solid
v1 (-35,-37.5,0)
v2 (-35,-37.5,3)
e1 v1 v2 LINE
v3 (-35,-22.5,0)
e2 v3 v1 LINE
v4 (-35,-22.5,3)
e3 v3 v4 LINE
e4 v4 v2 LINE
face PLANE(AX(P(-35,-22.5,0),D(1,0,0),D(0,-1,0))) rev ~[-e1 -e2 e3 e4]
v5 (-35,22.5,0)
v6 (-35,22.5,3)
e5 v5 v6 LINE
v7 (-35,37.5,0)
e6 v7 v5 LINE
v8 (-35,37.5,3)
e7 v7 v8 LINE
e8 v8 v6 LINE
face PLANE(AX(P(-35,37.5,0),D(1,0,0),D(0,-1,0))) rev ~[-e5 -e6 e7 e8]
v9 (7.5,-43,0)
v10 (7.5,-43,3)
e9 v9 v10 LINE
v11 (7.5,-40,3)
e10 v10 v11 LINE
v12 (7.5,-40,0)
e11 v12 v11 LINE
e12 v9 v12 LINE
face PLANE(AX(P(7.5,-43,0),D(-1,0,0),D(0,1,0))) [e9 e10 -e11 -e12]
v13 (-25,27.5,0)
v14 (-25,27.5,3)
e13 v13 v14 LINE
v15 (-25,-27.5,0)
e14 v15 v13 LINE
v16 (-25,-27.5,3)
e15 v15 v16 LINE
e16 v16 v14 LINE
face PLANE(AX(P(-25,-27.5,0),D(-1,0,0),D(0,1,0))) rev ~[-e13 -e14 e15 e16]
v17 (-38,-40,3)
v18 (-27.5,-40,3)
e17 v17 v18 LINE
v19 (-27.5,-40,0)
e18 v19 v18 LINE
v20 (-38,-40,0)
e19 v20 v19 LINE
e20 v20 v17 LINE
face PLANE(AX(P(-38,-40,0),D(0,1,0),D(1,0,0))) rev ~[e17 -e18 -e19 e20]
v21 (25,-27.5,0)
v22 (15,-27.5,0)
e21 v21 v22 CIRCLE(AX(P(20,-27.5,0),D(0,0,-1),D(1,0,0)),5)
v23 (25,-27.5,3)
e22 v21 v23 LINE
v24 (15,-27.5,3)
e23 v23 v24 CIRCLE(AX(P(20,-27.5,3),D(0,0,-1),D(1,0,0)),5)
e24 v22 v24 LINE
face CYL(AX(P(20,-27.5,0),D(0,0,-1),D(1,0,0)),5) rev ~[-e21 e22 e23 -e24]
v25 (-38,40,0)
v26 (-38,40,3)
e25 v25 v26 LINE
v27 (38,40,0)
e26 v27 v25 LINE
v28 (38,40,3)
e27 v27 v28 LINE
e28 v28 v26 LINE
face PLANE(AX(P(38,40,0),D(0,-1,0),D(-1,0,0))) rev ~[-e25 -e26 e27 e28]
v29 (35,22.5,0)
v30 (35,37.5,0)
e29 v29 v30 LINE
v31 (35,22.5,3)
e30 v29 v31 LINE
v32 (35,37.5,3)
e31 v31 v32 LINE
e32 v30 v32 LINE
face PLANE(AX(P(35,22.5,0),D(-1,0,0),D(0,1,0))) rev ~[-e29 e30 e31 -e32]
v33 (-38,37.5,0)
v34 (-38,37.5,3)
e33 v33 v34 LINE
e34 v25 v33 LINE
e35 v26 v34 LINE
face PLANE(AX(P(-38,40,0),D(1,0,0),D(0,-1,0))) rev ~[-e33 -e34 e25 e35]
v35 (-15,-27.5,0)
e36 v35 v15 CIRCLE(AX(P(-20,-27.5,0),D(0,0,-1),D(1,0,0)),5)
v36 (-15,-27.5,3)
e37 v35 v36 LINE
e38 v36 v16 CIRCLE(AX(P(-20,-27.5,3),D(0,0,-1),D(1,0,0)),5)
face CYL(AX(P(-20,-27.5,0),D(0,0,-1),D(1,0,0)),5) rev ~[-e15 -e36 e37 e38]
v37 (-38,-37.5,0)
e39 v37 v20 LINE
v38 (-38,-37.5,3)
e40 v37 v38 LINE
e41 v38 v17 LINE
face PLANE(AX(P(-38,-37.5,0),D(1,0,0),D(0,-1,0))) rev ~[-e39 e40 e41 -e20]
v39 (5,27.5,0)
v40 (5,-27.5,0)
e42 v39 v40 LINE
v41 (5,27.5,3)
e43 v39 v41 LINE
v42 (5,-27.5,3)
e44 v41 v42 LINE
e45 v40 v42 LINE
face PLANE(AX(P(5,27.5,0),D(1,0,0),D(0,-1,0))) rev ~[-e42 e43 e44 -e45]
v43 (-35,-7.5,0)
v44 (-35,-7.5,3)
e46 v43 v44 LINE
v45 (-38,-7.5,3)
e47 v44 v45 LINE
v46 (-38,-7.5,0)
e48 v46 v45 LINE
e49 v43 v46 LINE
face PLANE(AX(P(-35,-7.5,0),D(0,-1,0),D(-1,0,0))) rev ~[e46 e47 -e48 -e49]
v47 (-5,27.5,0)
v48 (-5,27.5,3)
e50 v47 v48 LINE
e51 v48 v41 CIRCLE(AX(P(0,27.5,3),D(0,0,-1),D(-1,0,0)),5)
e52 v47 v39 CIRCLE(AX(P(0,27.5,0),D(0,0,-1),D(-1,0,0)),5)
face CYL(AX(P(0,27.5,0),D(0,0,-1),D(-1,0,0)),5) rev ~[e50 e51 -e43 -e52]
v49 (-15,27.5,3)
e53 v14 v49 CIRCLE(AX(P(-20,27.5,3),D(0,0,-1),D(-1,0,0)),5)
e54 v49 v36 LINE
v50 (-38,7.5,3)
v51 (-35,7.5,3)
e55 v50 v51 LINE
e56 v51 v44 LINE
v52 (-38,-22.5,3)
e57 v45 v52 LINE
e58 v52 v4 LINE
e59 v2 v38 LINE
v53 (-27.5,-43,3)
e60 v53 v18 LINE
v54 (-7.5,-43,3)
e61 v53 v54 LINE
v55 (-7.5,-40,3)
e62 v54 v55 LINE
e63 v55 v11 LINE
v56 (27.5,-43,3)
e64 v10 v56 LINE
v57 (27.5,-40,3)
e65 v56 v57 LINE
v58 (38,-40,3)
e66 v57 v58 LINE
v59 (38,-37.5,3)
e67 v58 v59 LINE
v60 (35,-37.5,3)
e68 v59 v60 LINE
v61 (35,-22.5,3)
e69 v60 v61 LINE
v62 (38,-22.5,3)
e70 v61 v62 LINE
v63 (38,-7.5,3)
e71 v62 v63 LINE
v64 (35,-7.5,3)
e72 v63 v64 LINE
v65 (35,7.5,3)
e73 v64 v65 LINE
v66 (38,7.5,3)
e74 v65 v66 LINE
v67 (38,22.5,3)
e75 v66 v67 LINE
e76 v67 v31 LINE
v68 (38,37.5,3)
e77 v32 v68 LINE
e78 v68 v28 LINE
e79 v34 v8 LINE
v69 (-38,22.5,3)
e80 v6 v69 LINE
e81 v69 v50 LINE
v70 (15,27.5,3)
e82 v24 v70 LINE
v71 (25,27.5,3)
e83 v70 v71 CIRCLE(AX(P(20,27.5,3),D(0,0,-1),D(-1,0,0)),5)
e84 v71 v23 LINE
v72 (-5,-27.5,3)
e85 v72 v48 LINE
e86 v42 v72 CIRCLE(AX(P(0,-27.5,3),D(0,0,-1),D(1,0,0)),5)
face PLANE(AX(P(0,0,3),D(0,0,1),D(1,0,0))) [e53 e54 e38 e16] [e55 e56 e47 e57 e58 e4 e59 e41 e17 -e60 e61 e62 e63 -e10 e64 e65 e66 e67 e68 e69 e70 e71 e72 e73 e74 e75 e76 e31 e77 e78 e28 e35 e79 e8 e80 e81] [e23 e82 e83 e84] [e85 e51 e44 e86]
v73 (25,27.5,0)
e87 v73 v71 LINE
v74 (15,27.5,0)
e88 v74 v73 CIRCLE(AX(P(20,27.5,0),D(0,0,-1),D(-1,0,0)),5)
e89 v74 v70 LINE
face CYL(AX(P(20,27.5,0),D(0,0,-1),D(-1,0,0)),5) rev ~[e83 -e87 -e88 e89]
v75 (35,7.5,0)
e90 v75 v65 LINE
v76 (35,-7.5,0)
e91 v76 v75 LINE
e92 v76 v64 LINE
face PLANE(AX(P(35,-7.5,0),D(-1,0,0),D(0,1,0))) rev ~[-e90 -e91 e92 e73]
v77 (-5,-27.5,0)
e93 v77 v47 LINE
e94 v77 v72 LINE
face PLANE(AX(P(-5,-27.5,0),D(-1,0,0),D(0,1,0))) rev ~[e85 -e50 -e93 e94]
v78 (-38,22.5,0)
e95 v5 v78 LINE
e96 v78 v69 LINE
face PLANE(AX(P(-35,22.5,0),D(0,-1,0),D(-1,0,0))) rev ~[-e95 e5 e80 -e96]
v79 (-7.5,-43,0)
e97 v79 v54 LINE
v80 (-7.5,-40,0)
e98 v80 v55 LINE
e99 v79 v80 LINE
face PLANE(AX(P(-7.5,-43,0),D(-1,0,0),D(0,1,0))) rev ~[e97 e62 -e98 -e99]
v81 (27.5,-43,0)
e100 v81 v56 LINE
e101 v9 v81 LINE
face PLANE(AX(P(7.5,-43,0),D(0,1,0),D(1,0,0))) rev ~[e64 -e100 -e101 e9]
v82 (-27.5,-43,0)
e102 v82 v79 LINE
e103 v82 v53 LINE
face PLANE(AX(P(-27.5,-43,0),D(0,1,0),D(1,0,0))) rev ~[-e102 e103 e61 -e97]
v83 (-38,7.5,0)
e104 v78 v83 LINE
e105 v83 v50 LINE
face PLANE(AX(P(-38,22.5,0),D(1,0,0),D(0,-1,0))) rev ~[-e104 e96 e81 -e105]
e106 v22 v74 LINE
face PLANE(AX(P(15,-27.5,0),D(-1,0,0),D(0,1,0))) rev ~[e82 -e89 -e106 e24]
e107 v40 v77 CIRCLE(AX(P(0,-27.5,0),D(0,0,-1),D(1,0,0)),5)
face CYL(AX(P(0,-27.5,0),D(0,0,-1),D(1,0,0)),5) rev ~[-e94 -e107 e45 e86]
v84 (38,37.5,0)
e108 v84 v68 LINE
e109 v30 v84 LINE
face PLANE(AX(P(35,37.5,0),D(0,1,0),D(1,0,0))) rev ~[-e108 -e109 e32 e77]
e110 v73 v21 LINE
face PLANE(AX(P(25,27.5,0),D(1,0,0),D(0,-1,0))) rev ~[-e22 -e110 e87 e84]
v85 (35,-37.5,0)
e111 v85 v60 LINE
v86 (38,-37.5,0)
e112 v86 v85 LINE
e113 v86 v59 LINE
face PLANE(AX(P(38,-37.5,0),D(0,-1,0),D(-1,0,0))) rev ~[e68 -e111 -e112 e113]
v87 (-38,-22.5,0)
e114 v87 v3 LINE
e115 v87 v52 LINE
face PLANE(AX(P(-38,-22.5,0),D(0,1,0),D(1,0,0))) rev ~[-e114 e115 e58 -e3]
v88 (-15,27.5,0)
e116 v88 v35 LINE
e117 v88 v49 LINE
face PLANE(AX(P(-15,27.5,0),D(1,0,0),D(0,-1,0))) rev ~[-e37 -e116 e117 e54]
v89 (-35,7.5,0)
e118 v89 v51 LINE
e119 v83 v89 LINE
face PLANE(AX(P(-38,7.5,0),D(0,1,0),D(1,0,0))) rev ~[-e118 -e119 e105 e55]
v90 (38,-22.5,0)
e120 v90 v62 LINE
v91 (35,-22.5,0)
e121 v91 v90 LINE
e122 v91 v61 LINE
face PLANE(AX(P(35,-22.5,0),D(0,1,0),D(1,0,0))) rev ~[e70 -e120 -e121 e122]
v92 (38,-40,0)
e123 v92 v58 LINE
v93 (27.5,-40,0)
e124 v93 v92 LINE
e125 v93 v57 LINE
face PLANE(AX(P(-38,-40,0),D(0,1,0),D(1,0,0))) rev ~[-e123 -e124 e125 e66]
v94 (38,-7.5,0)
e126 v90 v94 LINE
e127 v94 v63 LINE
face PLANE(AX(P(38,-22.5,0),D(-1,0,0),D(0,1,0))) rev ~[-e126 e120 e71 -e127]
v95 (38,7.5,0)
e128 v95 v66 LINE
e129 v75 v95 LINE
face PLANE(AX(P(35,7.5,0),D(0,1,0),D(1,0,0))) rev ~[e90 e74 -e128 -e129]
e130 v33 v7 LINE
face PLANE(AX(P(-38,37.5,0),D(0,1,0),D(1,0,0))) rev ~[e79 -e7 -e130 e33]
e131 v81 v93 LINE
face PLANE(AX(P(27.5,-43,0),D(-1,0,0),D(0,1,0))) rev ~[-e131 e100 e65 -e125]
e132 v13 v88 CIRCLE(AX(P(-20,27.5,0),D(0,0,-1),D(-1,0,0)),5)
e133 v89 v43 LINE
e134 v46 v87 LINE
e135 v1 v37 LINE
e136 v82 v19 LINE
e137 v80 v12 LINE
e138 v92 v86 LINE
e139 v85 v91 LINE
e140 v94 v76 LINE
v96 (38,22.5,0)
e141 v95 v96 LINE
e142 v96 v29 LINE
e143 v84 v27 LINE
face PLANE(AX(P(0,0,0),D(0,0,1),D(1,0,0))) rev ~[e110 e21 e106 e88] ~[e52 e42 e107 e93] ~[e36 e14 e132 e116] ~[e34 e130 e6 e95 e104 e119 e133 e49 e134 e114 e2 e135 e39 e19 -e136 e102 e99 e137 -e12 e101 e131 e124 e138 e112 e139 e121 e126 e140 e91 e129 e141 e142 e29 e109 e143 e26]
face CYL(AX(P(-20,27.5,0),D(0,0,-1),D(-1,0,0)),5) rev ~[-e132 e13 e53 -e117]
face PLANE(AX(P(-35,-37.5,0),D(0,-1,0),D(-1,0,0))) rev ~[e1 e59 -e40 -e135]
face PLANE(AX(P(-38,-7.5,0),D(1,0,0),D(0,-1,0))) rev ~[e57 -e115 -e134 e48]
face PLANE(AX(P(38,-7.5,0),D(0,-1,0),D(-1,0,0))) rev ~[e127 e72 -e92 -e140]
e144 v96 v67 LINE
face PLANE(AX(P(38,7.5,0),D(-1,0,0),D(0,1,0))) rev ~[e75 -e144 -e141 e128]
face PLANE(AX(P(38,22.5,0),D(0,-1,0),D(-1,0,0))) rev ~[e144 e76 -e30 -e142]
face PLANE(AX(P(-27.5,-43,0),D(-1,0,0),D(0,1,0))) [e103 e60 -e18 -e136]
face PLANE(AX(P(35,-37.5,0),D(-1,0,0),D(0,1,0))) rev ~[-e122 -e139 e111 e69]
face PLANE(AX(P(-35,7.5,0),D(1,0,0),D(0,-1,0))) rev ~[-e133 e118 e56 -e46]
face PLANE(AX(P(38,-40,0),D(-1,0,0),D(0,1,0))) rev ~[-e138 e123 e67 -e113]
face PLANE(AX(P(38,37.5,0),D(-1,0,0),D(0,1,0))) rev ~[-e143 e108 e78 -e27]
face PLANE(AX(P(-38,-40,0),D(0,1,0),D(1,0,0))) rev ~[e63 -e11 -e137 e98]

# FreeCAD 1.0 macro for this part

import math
import FreeCAD as App
import Part
import Sketcher
from FreeCAD import Vector
Q = App.Units.Quantity


def add_polygon(sketch, points):
    """Adds a closed chain of lines whose ends are joined by coincident constraints."""
    first, n = sketch.GeometryCount, len(points)
    for a, b in zip(points, points[1:] + points[:1]):
        sketch.addGeometry(Part.LineSegment(App.Vector(*a, 0), App.Vector(*b, 0)), False)
    for i in range(n):
        sketch.addConstraint(Sketcher.Constraint("Coincident", first + i, 2, first + (i + 1) % n, 1))

doc = App.newDocument("Part")
params = doc.addObject("Spreadsheet::Sheet", "Params")
for row, (alias, value) in enumerate([
    ("sketch1_radius", "5 mm"),
    ("sketch1_width", "3 mm"),
    ("sketch1_width2", "20 mm"),
    ("sketch1_width3", "15 mm"),
    ("sketch1_width4", "76 mm"),
    ("pad1_length", "3 mm"),
], start=1):
    params.set(f"A{row}", alias)
    params.set(f"B{row}", "=" + value)
    params.setAlias(f"B{row}", alias)

body = doc.addObject("PartDesign::Body", "Body")

# Sketch on XY plane
sketch1 = doc.addObject("Sketcher::SketchObject", "Sketch")
body.addObject(sketch1)
sketch1.AttachmentSupport = (doc.XY_Plane, [""])
sketch1.MapMode = "FlatFace"
add_polygon(sketch1, [(-38, 40), (-38, 37.5), (-35, 37.5), (-35, 22.5), (-38, 22.5), (-38, 7.5), (-35, 7.5), (-35, -7.5), (-38, -7.5), (-38, -22.5), (-35, -22.5), (-35, -37.5), (-38, -37.5), (-38, -40), (-27.5, -40), (-27.5, -43), (-7.5, -43), (-7.5, -40), (7.5, -40), (7.5, -43), (27.5, -43), (27.5, -40), (38, -40), (38, -37.5), (35, -37.5), (35, -22.5), (38, -22.5), (38, -7.5), (35, -7.5), (35, 7.5), (38, 7.5), (38, 22.5), (35, 22.5), (35, 37.5), (38, 37.5), (38, 40)])  # lines 0-35
sketch1.addGeometry(Part.ArcOfCircle(Part.Circle(Vector(-20, 27.5, 0), Vector(0, 0, 1), 5), math.radians(0), math.radians(180)), False)  # 36
sketch1.addGeometry(Part.LineSegment(Vector(-15, 27.5, 0), Vector(-15, -27.5, 0)), False)  # 37
sketch1.addGeometry(Part.ArcOfCircle(Part.Circle(Vector(-20, -27.5, 0), Vector(0, 0, 1), 5), math.radians(180), math.radians(360)), False)  # 38
sketch1.addGeometry(Part.LineSegment(Vector(-25, -27.5, 0), Vector(-25, 27.5, 0)), False)  # 39
sketch1.addGeometry(Part.LineSegment(Vector(5, 27.5, 0), Vector(5, -27.5, 0)), False)  # 40
sketch1.addGeometry(Part.ArcOfCircle(Part.Circle(Vector(0, -27.5, 0), Vector(0, 0, 1), 5), math.radians(180), math.radians(360)), False)  # 41
sketch1.addGeometry(Part.LineSegment(Vector(-5, -27.5, 0), Vector(-5, 27.5, 0)), False)  # 42
sketch1.addGeometry(Part.ArcOfCircle(Part.Circle(Vector(0, 27.5, 0), Vector(0, 0, 1), 5), math.radians(0), math.radians(180)), False)  # 43
sketch1.addGeometry(Part.LineSegment(Vector(25, 27.5, 0), Vector(25, -27.5, 0)), False)  # 44
sketch1.addGeometry(Part.ArcOfCircle(Part.Circle(Vector(20, -27.5, 0), Vector(0, 0, 1), 5), math.radians(180), math.radians(360)), False)  # 45
sketch1.addGeometry(Part.LineSegment(Vector(15, -27.5, 0), Vector(15, 27.5, 0)), False)  # 46
sketch1.addGeometry(Part.ArcOfCircle(Part.Circle(Vector(20, 27.5, 0), Vector(0, 0, 1), 5), math.radians(0), math.radians(180)), False)  # 47
sketch1.addConstraint([
    Sketcher.Constraint("Tangent", 36, 1, 37, 1),
    Sketcher.Constraint("Tangent", 37, 2, 38, 2),
    Sketcher.Constraint("Tangent", 38, 1, 39, 1),
    Sketcher.Constraint("Tangent", 39, 2, 36, 2),
    Sketcher.Constraint("Tangent", 40, 2, 41, 2),
    Sketcher.Constraint("Tangent", 41, 1, 42, 1),
    Sketcher.Constraint("Tangent", 42, 2, 43, 2),
    Sketcher.Constraint("Tangent", 43, 1, 40, 1),
    Sketcher.Constraint("Tangent", 44, 2, 45, 2),
    Sketcher.Constraint("Tangent", 45, 1, 46, 1),
    Sketcher.Constraint("Tangent", 46, 2, 47, 2),
    Sketcher.Constraint("Tangent", 47, 1, 44, 1),
    Sketcher.Constraint("Vertical", 0),
    Sketcher.Constraint("Horizontal", 1),
    Sketcher.Constraint("Vertical", 2),
    Sketcher.Constraint("Horizontal", 3),
    Sketcher.Constraint("Vertical", 4),
    Sketcher.Constraint("Horizontal", 5),
    Sketcher.Constraint("Vertical", 6),
    Sketcher.Constraint("Horizontal", 7),
    Sketcher.Constraint("Vertical", 8),
    Sketcher.Constraint("Horizontal", 9),
    Sketcher.Constraint("Vertical", 10),
    Sketcher.Constraint("Horizontal", 11),
    Sketcher.Constraint("Vertical", 12),
    Sketcher.Constraint("Horizontal", 13),
    Sketcher.Constraint("Vertical", 14),
    Sketcher.Constraint("Horizontal", 15),
    Sketcher.Constraint("Vertical", 16),
    Sketcher.Constraint("Horizontal", 17),
    Sketcher.Constraint("Vertical", 18),
    Sketcher.Constraint("Horizontal", 19),
    Sketcher.Constraint("Vertical", 20),
    Sketcher.Constraint("Horizontal", 21),
    Sketcher.Constraint("Vertical", 22),
    Sketcher.Constraint("Horizontal", 23),
    Sketcher.Constraint("Vertical", 24),
    Sketcher.Constraint("Horizontal", 25),
    Sketcher.Constraint("Vertical", 26),
    Sketcher.Constraint("Horizontal", 27),
    Sketcher.Constraint("Vertical", 28),
    Sketcher.Constraint("Horizontal", 29),
    Sketcher.Constraint("Vertical", 30),
    Sketcher.Constraint("Horizontal", 31),
    Sketcher.Constraint("Vertical", 32),
    Sketcher.Constraint("Horizontal", 33),
    Sketcher.Constraint("Vertical", 34),
    Sketcher.Constraint("Horizontal", 35),
    Sketcher.Constraint("Vertical", 37),
    Sketcher.Constraint("Vertical", 39),
    Sketcher.Constraint("Vertical", 40),
    Sketcher.Constraint("Vertical", 42),
    Sketcher.Constraint("Vertical", 44),
    Sketcher.Constraint("Vertical", 46),
    Sketcher.Constraint("Equal", 38, 41),
    Sketcher.Constraint("Equal", 43, 45),
    Sketcher.Constraint("Symmetric", 41, 3, 43, 3, -1, 1),
    Sketcher.Constraint("Symmetric", 36, 3, 45, 3, -1, 1),
    Sketcher.Constraint("Symmetric", 0, 2, 22, 2, -1, 1),
    Sketcher.Constraint("Symmetric", 2, 2, 24, 2, -1, 1),
    Sketcher.Constraint("Symmetric", 4, 2, 26, 2, -1, 1),
    Sketcher.Constraint("Symmetric", 6, 2, 28, 2, -1, 1),
    Sketcher.Constraint("Symmetric", 8, 2, 30, 2, -1, 1),
    Sketcher.Constraint("Symmetric", 10, 2, 32, 2, -1, 1),
    Sketcher.Constraint("Symmetric", 12, 2, 34, 2, -1, 1),
    Sketcher.Constraint("Symmetric", 15, 2, 18, 2, -2),
    Sketcher.Constraint("Symmetric", 13, 2, 20, 2, -2),
    Sketcher.Constraint("Symmetric", 11, 2, 22, 2, -2),
    Sketcher.Constraint("Symmetric", 9, 2, 24, 2, -2),
    Sketcher.Constraint("Symmetric", 7, 2, 26, 2, -2),
    Sketcher.Constraint("Horizontal", 38, 3, 41, 3),
    Sketcher.Constraint("Horizontal", 36, 3, 43, 3),
    Sketcher.Constraint("Horizontal", 43, 3, 47, 3),
    Sketcher.Constraint("Horizontal", 13, 2, 16, 2),
    Sketcher.Constraint("Vertical", 0, 2, 3, 2),
    Sketcher.Constraint("Vertical", 2, 2, 5, 2),
    Sketcher.Constraint("Equal", 17, 2),
    Sketcher.Constraint("Equal", 2, 4),
    Sketcher.Constraint("Equal", 4, 6),
    Sketcher.Constraint("Equal", 33, 14),
    Sketcher.Constraint("Radius", 36, Q("5 mm")),
    Sketcher.Constraint("DistanceX", 1, 1, 1, 2, Q("3 mm")),
    Sketcher.Constraint("DistanceX", 15, 1, 15, 2, Q("20 mm")),
    Sketcher.Constraint("DistanceX", 17, 1, 17, 2, Q("15 mm")),
    Sketcher.Constraint("DistanceX", 35, 2, 35, 1, Q("76 mm")),
    Sketcher.Constraint("DistanceY", 37, 2, 37, 1, Q("55 mm")),
    Sketcher.Constraint("DistanceY", 0, 2, 0, 1, Q("2.5 mm")),
    Sketcher.Constraint("DistanceX", 36, 3, -1, 1, Q("20 mm")),
])
sketch1.setExpression("Constraints[116]", "Params.sketch1_radius")
sketch1.setExpression("Constraints[117]", "Params.sketch1_width")
sketch1.setExpression("Constraints[118]", "Params.sketch1_width2")
sketch1.setExpression("Constraints[119]", "Params.sketch1_width3")
sketch1.setExpression("Constraints[120]", "Params.sketch1_width4")
pad1 = doc.addObject("PartDesign::Pad", "Pad")
body.addObject(pad1)
pad1.Profile = sketch1
pad1.setExpression("Length", "Params.pad1_length")

doc.recompute()
